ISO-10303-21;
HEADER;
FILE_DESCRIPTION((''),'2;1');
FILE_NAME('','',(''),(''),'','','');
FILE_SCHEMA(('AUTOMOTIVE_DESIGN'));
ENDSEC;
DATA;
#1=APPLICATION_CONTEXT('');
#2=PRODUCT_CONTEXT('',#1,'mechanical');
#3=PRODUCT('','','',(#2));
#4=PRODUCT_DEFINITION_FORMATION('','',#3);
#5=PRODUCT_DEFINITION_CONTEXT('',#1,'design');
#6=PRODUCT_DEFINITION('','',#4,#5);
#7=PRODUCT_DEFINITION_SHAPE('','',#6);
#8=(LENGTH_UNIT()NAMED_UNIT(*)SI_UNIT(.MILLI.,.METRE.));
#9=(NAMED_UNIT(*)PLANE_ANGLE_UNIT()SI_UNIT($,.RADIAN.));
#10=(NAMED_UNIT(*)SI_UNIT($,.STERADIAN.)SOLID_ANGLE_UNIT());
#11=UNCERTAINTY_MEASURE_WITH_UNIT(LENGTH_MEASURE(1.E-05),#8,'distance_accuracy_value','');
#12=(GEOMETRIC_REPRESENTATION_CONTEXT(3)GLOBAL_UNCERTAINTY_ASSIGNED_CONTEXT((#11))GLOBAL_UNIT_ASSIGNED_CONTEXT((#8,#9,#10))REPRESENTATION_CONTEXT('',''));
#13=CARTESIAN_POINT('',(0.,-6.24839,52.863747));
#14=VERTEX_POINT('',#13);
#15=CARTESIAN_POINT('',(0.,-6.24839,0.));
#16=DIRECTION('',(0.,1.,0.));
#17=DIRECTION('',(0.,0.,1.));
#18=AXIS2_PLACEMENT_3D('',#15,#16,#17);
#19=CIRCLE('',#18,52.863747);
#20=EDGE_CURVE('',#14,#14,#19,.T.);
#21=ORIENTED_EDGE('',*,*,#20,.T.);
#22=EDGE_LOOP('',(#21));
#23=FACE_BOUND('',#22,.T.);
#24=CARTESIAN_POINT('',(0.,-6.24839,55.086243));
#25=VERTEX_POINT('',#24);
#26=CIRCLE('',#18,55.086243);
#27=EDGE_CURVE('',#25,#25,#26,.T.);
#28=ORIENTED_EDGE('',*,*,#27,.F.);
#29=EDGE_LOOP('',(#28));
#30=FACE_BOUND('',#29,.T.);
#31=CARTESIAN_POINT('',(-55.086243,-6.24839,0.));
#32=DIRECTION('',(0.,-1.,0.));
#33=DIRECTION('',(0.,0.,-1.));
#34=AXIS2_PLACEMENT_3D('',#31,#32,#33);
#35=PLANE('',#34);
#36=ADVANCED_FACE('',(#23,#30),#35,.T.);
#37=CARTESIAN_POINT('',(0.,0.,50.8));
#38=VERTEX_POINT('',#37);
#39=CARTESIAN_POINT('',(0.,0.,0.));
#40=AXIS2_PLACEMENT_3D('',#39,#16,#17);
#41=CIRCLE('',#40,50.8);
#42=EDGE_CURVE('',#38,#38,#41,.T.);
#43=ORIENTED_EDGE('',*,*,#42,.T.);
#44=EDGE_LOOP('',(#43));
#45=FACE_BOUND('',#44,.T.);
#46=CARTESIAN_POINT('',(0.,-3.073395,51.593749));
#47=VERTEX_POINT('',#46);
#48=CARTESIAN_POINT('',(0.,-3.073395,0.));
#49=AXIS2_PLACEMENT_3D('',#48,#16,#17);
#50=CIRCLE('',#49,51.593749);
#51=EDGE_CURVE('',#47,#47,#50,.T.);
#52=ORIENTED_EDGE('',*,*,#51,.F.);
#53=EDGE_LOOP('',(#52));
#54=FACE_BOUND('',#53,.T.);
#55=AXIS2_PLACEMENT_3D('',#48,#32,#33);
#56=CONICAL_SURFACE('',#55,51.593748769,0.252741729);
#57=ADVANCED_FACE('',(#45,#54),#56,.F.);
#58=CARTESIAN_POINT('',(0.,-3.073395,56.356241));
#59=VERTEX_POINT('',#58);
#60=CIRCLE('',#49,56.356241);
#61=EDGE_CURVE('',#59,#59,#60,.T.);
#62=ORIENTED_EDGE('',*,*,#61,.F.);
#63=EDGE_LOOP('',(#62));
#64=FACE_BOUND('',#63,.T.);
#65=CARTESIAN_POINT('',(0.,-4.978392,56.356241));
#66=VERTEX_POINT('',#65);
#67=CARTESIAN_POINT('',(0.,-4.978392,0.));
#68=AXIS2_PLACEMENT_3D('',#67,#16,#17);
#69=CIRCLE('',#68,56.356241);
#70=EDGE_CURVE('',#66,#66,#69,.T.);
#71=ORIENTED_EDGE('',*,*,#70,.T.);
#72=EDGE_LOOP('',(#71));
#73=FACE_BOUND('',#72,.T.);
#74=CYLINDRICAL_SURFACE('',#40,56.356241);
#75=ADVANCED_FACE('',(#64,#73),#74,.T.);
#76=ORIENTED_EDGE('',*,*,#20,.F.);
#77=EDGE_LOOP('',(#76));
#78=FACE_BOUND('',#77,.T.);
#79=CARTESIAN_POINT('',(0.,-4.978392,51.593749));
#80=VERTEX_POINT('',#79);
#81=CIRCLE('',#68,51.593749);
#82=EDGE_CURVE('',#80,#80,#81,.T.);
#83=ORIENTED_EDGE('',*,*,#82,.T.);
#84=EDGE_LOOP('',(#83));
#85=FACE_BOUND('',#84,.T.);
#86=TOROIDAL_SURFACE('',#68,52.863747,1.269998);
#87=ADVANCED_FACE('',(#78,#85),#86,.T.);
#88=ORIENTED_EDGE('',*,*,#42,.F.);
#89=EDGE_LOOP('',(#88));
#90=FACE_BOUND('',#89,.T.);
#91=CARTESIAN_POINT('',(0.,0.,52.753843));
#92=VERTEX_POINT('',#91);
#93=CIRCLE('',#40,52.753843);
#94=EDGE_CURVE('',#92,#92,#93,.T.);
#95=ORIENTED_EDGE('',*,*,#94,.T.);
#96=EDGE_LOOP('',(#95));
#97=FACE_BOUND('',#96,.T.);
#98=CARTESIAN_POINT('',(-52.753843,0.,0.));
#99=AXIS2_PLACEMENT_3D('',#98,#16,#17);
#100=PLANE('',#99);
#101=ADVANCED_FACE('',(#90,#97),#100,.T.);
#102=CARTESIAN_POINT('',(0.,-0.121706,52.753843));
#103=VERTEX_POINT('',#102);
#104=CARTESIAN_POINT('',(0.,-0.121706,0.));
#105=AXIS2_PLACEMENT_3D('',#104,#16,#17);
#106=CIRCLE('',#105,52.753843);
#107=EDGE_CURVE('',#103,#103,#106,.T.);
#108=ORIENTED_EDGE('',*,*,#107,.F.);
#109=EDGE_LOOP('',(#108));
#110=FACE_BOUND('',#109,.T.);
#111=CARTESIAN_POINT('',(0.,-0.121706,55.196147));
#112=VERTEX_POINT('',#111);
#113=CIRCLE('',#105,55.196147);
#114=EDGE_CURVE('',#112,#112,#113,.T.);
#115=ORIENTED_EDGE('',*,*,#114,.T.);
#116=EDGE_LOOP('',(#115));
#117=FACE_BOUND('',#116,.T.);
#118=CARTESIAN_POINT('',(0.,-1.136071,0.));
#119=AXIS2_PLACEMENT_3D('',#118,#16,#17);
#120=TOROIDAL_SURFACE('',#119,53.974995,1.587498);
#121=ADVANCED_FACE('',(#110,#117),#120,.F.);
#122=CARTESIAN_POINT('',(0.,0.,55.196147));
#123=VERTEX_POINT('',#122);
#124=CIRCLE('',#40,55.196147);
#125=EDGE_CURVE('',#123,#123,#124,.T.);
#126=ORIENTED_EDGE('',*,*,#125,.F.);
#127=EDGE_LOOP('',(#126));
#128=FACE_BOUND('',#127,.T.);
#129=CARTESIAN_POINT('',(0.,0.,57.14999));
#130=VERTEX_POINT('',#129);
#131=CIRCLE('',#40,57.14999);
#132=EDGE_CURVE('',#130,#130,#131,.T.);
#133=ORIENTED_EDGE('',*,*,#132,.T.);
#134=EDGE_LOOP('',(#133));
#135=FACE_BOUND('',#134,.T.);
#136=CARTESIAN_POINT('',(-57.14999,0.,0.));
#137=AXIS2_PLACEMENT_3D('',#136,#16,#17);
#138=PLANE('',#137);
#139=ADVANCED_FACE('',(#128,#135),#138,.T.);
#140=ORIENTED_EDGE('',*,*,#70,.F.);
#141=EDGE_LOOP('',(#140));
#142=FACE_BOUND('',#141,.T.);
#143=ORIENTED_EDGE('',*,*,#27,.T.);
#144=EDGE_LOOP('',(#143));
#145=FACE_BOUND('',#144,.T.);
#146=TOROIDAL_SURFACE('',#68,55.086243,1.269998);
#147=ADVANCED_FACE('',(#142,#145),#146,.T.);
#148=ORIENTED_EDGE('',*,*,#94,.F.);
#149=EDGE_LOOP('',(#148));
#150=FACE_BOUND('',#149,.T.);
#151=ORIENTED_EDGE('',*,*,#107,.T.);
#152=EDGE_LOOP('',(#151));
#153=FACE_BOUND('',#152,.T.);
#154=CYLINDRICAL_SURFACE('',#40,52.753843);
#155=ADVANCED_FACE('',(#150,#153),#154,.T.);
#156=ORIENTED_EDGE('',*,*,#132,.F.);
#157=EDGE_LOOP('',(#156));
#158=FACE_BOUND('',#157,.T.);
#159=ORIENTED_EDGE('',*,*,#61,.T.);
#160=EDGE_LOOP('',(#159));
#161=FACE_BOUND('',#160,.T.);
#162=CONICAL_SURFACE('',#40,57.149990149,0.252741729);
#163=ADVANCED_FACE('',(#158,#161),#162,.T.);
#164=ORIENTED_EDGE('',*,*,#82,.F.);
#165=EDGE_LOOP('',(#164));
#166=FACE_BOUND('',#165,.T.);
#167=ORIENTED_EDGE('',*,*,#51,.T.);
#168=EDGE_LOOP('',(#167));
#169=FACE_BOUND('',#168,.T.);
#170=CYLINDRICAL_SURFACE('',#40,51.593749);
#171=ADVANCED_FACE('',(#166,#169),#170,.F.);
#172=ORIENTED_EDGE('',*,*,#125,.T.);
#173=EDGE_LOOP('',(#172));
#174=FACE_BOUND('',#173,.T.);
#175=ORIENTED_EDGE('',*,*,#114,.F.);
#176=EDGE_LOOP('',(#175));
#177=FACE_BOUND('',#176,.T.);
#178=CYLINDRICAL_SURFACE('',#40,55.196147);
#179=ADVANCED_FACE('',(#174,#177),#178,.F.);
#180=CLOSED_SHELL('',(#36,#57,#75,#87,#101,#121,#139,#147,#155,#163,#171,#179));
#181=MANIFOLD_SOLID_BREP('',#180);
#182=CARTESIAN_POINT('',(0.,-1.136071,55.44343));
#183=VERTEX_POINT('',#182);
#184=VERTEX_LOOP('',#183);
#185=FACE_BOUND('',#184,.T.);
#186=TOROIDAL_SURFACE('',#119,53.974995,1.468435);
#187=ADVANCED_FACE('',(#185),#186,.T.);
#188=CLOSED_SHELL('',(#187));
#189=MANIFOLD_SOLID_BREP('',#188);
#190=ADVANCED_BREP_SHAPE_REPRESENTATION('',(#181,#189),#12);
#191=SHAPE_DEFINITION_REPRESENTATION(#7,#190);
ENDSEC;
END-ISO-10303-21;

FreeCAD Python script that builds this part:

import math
import FreeCAD as App
import Part
import Sketcher
Q = App.Units.Quantity

doc = App.newDocument("Part")
body = doc.addObject("PartDesign::Body", "Body")
body.AllowCompound = True

sketch1 = body.newObject("Sketcher::SketchObject", "Sketch")
sketch1.AttachmentSupport = (doc.getObject("XY_Plane"), [""])
sketch1.MapMode = "FlatFace"
sketch1.addGeometry([
    Part.Circle(App.Vector(-53.97, -1.14, 0), App.Vector(0, 0, 1), 1.47),
    Part.LineSegment(App.Vector(-55.09, -6.25, 0), App.Vector(-52.86, -6.25, 0)),
    Part.ArcOfCircle(Part.Circle(App.Vector(-52.86, -4.98, 0), App.Vector(0, 0, 1), 1.27), math.radians(-90), math.radians(0)),
    Part.LineSegment(App.Vector(-51.59, -4.98, 0), App.Vector(-51.59, -3.07, 0)),
    Part.LineSegment(App.Vector(-51.59, -3.07, 0), App.Vector(-50.8, 0, 0)),
    Part.LineSegment(App.Vector(-50.8, 0, 0), App.Vector(-52.75, 0, 0)),
    Part.LineSegment(App.Vector(-52.75, 0, 0), App.Vector(-52.75, -0.12, 0)),
    Part.ArcOfCircle(Part.Circle(App.Vector(-53.97, -1.14, 0), App.Vector(0, 0, 1), 1.59), math.radians(140), math.radians(400)),
    Part.LineSegment(App.Vector(-55.2, -0.12, 0), App.Vector(-55.2, 0, 0)),
    Part.LineSegment(App.Vector(-55.2, 0, 0), App.Vector(-57.15, 0, 0)),
    Part.LineSegment(App.Vector(-57.15, 0, 0), App.Vector(-56.36, -3.07, 0)),
    Part.LineSegment(App.Vector(-56.36, -3.07, 0), App.Vector(-56.36, -4.98, 0)),
    Part.ArcOfCircle(Part.Circle(App.Vector(-55.09, -4.98, 0), App.Vector(0, 0, 1), 1.27), math.radians(180), math.radians(270)),
], False)
sketch1.addConstraint([
    Sketcher.Constraint("Tangent", 1, 2, 2, 1),
    Sketcher.Constraint("Tangent", 2, 2, 3, 1),
    Sketcher.Constraint("Coincident", 3, 2, 4, 1),
    Sketcher.Constraint("Coincident", 4, 2, 5, 1),
    Sketcher.Constraint("Coincident", 5, 2, 6, 1),
    Sketcher.Constraint("Coincident", 6, 2, 7, 2),
    Sketcher.Constraint("Coincident", 7, 1, 8, 1),
    Sketcher.Constraint("Coincident", 8, 2, 9, 1),
    Sketcher.Constraint("Coincident", 9, 2, 10, 1),
    Sketcher.Constraint("Coincident", 10, 2, 11, 1),
    Sketcher.Constraint("Tangent", 11, 2, 12, 1),
    Sketcher.Constraint("Tangent", 12, 2, 1, 1),
    Sketcher.Constraint("Horizontal", 1),
    Sketcher.Constraint("Vertical", 3),
    Sketcher.Constraint("Horizontal", 5),
    Sketcher.Constraint("Vertical", 6),
    Sketcher.Constraint("Vertical", 8),
    Sketcher.Constraint("Horizontal", 9),
    Sketcher.Constraint("Vertical", 11),
    Sketcher.Constraint("Coincident", 7, 3, 0, 3),
    Sketcher.Constraint("Equal", 2, 12),
    Sketcher.Constraint("PointOnObject", 4, 2, -1),
    Sketcher.Constraint("PointOnObject", 8, 2, -1),
    Sketcher.Constraint("Horizontal", 6, 2, 7, 1),
    Sketcher.Constraint("Horizontal", 3, 2, 10, 2),
    Sketcher.Constraint("Equal", 5, 9),
    Sketcher.Constraint("Equal", 4, 10),
    Sketcher.Constraint("Radius", 2, Q("0.0499999 in")),
    Sketcher.Constraint("DistanceX", 4, 2, -1, 1, Q("2 in")),
    Sketcher.Constraint("Radius", 7, Q("0.0624999 in")),
    Sketcher.Constraint("DistanceY", 3, 1, 3, 2, Q("0.0749999 in")),
    Sketcher.Constraint("Diameter", 0, Q("2.93687 mm")),
    Sketcher.Constraint("DistanceX", 1, 1, 1, 2, Q("0.0874999 in")),
    Sketcher.Constraint("DistanceX", 0, 3, -1, 1, Q("2.1249998 in")),
    Sketcher.Constraint("DistanceY", 3, 2, -1, 1, Q("0.1209998 in")),
    Sketcher.Constraint("DistanceX", 5, 2, 5, 1, Q("1.953843 mm")),
    Sketcher.Constraint("DistanceY", 6, 2, 6, 1, Q("0.121706 mm")),
])
revolution = body.newObject("PartDesign::Revolution", "Revolution")
revolution.Profile = sketch1
revolution.ReferenceAxis = (sketch1, ["V_Axis"])
revolution.Angle = 360

doc.recompute()
